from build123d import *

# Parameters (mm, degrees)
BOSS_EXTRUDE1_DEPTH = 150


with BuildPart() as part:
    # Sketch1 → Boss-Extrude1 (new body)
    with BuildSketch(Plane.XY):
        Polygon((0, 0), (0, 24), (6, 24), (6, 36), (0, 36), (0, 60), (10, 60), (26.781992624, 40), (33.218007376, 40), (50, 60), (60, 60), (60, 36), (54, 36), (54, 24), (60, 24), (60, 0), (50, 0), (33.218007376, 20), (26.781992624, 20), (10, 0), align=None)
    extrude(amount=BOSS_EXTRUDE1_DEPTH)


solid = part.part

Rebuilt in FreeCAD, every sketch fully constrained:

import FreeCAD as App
import Part
import Sketcher
Q = App.Units.Quantity


def add_polygon(sketch, points):
    """Adds a closed chain of lines whose ends are joined by coincident constraints."""
    first, n = sketch.GeometryCount, len(points)
    for a, b in zip(points, points[1:] + points[:1]):
        sketch.addGeometry(Part.LineSegment(App.Vector(*a, 0), App.Vector(*b, 0)), False)
    for i in range(n):
        sketch.addConstraint(Sketcher.Constraint("Coincident", first + i, 2, first + (i + 1) % n, 1))

doc = App.newDocument("Part")
body = doc.addObject("PartDesign::Body", "Body")

sketch1 = doc.addObject("Sketcher::SketchObject", "Sketch")
body.addObject(sketch1)
sketch1.AttachmentSupport = (doc.XY_Plane, [""])
sketch1.MapMode = "FlatFace"
add_polygon(sketch1, [(0, 24), (0, 0), (10, 0), (27, 20), (33, 20), (50, 0), (60, 0), (60, 24), (54, 24), (54, 36), (60, 36), (60, 60), (50, 60), (33, 40), (27, 40), (10, 60), (0, 60), (0, 36), (6, 36), (6, 24)])
sketch1.addConstraint([
    Sketcher.Constraint("Vertical", 0),
    Sketcher.Constraint("Horizontal", 1),
    Sketcher.Constraint("Horizontal", 3),
    Sketcher.Constraint("Horizontal", 5),
    Sketcher.Constraint("Vertical", 6),
    Sketcher.Constraint("Horizontal", 7),
    Sketcher.Constraint("Vertical", 8),
    Sketcher.Constraint("Horizontal", 9),
    Sketcher.Constraint("Vertical", 10),
    Sketcher.Constraint("Horizontal", 11),
    Sketcher.Constraint("Horizontal", 13),
    Sketcher.Constraint("Horizontal", 15),
    Sketcher.Constraint("Vertical", 16),
    Sketcher.Constraint("Horizontal", 17),
    Sketcher.Constraint("Vertical", 18),
    Sketcher.Constraint("Horizontal", 19),
    Sketcher.Constraint("Coincident", 0, 2, -1, 1),
    Sketcher.Constraint("PointOnObject", 4, 2, -1),
    Sketcher.Constraint("PointOnObject", 15, 2, -2),
    Sketcher.Constraint("Parallel", 2, 12),
    Sketcher.Constraint("Parallel", 4, 14),
    Sketcher.Constraint("Horizontal", 11, 2, 14, 2),
    Sketcher.Constraint("Horizontal", 9, 2, 16, 2),
    Sketcher.Constraint("Horizontal", 7, 2, 18, 2),
    Sketcher.Constraint("Vertical", 6, 2, 9, 2),
    Sketcher.Constraint("Vertical", 4, 2, 11, 2),
    Sketcher.Constraint("Vertical", 3, 2, 12, 2),
    Sketcher.Constraint("Vertical", 2, 2, 13, 2),
    Sketcher.Constraint("Vertical", 1, 2, 14, 2),
    Sketcher.Constraint("Equal", 1, 5),
    Sketcher.Constraint("Equal", 9, 17),
    Sketcher.Constraint("Equal", 6, 10),
    Sketcher.Constraint("DistanceX", 1, 1, 1, 2, Q("10 mm")),
    Sketcher.Constraint("DistanceX", 7, 2, 7, 1, Q("6 mm")),
    Sketcher.Constraint("DistanceY", 0, 2, 0, 1, Q("24 mm")),
    Sketcher.Constraint("DistanceY", 8, 1, 8, 2, Q("12 mm")),
    Sketcher.Constraint("Angle", 2, Q("50 deg")),
    Sketcher.Constraint("DistanceY", -1, 1, 2, 2, Q("20 mm")),
    Sketcher.Constraint("DistanceX", -1, 1, 4, 2, Q("50 mm")),
])
pad1 = doc.addObject("PartDesign::Pad", "Pad")
body.addObject(pad1)
pad1.Profile = sketch1
pad1.Length = 150

doc.recompute()
